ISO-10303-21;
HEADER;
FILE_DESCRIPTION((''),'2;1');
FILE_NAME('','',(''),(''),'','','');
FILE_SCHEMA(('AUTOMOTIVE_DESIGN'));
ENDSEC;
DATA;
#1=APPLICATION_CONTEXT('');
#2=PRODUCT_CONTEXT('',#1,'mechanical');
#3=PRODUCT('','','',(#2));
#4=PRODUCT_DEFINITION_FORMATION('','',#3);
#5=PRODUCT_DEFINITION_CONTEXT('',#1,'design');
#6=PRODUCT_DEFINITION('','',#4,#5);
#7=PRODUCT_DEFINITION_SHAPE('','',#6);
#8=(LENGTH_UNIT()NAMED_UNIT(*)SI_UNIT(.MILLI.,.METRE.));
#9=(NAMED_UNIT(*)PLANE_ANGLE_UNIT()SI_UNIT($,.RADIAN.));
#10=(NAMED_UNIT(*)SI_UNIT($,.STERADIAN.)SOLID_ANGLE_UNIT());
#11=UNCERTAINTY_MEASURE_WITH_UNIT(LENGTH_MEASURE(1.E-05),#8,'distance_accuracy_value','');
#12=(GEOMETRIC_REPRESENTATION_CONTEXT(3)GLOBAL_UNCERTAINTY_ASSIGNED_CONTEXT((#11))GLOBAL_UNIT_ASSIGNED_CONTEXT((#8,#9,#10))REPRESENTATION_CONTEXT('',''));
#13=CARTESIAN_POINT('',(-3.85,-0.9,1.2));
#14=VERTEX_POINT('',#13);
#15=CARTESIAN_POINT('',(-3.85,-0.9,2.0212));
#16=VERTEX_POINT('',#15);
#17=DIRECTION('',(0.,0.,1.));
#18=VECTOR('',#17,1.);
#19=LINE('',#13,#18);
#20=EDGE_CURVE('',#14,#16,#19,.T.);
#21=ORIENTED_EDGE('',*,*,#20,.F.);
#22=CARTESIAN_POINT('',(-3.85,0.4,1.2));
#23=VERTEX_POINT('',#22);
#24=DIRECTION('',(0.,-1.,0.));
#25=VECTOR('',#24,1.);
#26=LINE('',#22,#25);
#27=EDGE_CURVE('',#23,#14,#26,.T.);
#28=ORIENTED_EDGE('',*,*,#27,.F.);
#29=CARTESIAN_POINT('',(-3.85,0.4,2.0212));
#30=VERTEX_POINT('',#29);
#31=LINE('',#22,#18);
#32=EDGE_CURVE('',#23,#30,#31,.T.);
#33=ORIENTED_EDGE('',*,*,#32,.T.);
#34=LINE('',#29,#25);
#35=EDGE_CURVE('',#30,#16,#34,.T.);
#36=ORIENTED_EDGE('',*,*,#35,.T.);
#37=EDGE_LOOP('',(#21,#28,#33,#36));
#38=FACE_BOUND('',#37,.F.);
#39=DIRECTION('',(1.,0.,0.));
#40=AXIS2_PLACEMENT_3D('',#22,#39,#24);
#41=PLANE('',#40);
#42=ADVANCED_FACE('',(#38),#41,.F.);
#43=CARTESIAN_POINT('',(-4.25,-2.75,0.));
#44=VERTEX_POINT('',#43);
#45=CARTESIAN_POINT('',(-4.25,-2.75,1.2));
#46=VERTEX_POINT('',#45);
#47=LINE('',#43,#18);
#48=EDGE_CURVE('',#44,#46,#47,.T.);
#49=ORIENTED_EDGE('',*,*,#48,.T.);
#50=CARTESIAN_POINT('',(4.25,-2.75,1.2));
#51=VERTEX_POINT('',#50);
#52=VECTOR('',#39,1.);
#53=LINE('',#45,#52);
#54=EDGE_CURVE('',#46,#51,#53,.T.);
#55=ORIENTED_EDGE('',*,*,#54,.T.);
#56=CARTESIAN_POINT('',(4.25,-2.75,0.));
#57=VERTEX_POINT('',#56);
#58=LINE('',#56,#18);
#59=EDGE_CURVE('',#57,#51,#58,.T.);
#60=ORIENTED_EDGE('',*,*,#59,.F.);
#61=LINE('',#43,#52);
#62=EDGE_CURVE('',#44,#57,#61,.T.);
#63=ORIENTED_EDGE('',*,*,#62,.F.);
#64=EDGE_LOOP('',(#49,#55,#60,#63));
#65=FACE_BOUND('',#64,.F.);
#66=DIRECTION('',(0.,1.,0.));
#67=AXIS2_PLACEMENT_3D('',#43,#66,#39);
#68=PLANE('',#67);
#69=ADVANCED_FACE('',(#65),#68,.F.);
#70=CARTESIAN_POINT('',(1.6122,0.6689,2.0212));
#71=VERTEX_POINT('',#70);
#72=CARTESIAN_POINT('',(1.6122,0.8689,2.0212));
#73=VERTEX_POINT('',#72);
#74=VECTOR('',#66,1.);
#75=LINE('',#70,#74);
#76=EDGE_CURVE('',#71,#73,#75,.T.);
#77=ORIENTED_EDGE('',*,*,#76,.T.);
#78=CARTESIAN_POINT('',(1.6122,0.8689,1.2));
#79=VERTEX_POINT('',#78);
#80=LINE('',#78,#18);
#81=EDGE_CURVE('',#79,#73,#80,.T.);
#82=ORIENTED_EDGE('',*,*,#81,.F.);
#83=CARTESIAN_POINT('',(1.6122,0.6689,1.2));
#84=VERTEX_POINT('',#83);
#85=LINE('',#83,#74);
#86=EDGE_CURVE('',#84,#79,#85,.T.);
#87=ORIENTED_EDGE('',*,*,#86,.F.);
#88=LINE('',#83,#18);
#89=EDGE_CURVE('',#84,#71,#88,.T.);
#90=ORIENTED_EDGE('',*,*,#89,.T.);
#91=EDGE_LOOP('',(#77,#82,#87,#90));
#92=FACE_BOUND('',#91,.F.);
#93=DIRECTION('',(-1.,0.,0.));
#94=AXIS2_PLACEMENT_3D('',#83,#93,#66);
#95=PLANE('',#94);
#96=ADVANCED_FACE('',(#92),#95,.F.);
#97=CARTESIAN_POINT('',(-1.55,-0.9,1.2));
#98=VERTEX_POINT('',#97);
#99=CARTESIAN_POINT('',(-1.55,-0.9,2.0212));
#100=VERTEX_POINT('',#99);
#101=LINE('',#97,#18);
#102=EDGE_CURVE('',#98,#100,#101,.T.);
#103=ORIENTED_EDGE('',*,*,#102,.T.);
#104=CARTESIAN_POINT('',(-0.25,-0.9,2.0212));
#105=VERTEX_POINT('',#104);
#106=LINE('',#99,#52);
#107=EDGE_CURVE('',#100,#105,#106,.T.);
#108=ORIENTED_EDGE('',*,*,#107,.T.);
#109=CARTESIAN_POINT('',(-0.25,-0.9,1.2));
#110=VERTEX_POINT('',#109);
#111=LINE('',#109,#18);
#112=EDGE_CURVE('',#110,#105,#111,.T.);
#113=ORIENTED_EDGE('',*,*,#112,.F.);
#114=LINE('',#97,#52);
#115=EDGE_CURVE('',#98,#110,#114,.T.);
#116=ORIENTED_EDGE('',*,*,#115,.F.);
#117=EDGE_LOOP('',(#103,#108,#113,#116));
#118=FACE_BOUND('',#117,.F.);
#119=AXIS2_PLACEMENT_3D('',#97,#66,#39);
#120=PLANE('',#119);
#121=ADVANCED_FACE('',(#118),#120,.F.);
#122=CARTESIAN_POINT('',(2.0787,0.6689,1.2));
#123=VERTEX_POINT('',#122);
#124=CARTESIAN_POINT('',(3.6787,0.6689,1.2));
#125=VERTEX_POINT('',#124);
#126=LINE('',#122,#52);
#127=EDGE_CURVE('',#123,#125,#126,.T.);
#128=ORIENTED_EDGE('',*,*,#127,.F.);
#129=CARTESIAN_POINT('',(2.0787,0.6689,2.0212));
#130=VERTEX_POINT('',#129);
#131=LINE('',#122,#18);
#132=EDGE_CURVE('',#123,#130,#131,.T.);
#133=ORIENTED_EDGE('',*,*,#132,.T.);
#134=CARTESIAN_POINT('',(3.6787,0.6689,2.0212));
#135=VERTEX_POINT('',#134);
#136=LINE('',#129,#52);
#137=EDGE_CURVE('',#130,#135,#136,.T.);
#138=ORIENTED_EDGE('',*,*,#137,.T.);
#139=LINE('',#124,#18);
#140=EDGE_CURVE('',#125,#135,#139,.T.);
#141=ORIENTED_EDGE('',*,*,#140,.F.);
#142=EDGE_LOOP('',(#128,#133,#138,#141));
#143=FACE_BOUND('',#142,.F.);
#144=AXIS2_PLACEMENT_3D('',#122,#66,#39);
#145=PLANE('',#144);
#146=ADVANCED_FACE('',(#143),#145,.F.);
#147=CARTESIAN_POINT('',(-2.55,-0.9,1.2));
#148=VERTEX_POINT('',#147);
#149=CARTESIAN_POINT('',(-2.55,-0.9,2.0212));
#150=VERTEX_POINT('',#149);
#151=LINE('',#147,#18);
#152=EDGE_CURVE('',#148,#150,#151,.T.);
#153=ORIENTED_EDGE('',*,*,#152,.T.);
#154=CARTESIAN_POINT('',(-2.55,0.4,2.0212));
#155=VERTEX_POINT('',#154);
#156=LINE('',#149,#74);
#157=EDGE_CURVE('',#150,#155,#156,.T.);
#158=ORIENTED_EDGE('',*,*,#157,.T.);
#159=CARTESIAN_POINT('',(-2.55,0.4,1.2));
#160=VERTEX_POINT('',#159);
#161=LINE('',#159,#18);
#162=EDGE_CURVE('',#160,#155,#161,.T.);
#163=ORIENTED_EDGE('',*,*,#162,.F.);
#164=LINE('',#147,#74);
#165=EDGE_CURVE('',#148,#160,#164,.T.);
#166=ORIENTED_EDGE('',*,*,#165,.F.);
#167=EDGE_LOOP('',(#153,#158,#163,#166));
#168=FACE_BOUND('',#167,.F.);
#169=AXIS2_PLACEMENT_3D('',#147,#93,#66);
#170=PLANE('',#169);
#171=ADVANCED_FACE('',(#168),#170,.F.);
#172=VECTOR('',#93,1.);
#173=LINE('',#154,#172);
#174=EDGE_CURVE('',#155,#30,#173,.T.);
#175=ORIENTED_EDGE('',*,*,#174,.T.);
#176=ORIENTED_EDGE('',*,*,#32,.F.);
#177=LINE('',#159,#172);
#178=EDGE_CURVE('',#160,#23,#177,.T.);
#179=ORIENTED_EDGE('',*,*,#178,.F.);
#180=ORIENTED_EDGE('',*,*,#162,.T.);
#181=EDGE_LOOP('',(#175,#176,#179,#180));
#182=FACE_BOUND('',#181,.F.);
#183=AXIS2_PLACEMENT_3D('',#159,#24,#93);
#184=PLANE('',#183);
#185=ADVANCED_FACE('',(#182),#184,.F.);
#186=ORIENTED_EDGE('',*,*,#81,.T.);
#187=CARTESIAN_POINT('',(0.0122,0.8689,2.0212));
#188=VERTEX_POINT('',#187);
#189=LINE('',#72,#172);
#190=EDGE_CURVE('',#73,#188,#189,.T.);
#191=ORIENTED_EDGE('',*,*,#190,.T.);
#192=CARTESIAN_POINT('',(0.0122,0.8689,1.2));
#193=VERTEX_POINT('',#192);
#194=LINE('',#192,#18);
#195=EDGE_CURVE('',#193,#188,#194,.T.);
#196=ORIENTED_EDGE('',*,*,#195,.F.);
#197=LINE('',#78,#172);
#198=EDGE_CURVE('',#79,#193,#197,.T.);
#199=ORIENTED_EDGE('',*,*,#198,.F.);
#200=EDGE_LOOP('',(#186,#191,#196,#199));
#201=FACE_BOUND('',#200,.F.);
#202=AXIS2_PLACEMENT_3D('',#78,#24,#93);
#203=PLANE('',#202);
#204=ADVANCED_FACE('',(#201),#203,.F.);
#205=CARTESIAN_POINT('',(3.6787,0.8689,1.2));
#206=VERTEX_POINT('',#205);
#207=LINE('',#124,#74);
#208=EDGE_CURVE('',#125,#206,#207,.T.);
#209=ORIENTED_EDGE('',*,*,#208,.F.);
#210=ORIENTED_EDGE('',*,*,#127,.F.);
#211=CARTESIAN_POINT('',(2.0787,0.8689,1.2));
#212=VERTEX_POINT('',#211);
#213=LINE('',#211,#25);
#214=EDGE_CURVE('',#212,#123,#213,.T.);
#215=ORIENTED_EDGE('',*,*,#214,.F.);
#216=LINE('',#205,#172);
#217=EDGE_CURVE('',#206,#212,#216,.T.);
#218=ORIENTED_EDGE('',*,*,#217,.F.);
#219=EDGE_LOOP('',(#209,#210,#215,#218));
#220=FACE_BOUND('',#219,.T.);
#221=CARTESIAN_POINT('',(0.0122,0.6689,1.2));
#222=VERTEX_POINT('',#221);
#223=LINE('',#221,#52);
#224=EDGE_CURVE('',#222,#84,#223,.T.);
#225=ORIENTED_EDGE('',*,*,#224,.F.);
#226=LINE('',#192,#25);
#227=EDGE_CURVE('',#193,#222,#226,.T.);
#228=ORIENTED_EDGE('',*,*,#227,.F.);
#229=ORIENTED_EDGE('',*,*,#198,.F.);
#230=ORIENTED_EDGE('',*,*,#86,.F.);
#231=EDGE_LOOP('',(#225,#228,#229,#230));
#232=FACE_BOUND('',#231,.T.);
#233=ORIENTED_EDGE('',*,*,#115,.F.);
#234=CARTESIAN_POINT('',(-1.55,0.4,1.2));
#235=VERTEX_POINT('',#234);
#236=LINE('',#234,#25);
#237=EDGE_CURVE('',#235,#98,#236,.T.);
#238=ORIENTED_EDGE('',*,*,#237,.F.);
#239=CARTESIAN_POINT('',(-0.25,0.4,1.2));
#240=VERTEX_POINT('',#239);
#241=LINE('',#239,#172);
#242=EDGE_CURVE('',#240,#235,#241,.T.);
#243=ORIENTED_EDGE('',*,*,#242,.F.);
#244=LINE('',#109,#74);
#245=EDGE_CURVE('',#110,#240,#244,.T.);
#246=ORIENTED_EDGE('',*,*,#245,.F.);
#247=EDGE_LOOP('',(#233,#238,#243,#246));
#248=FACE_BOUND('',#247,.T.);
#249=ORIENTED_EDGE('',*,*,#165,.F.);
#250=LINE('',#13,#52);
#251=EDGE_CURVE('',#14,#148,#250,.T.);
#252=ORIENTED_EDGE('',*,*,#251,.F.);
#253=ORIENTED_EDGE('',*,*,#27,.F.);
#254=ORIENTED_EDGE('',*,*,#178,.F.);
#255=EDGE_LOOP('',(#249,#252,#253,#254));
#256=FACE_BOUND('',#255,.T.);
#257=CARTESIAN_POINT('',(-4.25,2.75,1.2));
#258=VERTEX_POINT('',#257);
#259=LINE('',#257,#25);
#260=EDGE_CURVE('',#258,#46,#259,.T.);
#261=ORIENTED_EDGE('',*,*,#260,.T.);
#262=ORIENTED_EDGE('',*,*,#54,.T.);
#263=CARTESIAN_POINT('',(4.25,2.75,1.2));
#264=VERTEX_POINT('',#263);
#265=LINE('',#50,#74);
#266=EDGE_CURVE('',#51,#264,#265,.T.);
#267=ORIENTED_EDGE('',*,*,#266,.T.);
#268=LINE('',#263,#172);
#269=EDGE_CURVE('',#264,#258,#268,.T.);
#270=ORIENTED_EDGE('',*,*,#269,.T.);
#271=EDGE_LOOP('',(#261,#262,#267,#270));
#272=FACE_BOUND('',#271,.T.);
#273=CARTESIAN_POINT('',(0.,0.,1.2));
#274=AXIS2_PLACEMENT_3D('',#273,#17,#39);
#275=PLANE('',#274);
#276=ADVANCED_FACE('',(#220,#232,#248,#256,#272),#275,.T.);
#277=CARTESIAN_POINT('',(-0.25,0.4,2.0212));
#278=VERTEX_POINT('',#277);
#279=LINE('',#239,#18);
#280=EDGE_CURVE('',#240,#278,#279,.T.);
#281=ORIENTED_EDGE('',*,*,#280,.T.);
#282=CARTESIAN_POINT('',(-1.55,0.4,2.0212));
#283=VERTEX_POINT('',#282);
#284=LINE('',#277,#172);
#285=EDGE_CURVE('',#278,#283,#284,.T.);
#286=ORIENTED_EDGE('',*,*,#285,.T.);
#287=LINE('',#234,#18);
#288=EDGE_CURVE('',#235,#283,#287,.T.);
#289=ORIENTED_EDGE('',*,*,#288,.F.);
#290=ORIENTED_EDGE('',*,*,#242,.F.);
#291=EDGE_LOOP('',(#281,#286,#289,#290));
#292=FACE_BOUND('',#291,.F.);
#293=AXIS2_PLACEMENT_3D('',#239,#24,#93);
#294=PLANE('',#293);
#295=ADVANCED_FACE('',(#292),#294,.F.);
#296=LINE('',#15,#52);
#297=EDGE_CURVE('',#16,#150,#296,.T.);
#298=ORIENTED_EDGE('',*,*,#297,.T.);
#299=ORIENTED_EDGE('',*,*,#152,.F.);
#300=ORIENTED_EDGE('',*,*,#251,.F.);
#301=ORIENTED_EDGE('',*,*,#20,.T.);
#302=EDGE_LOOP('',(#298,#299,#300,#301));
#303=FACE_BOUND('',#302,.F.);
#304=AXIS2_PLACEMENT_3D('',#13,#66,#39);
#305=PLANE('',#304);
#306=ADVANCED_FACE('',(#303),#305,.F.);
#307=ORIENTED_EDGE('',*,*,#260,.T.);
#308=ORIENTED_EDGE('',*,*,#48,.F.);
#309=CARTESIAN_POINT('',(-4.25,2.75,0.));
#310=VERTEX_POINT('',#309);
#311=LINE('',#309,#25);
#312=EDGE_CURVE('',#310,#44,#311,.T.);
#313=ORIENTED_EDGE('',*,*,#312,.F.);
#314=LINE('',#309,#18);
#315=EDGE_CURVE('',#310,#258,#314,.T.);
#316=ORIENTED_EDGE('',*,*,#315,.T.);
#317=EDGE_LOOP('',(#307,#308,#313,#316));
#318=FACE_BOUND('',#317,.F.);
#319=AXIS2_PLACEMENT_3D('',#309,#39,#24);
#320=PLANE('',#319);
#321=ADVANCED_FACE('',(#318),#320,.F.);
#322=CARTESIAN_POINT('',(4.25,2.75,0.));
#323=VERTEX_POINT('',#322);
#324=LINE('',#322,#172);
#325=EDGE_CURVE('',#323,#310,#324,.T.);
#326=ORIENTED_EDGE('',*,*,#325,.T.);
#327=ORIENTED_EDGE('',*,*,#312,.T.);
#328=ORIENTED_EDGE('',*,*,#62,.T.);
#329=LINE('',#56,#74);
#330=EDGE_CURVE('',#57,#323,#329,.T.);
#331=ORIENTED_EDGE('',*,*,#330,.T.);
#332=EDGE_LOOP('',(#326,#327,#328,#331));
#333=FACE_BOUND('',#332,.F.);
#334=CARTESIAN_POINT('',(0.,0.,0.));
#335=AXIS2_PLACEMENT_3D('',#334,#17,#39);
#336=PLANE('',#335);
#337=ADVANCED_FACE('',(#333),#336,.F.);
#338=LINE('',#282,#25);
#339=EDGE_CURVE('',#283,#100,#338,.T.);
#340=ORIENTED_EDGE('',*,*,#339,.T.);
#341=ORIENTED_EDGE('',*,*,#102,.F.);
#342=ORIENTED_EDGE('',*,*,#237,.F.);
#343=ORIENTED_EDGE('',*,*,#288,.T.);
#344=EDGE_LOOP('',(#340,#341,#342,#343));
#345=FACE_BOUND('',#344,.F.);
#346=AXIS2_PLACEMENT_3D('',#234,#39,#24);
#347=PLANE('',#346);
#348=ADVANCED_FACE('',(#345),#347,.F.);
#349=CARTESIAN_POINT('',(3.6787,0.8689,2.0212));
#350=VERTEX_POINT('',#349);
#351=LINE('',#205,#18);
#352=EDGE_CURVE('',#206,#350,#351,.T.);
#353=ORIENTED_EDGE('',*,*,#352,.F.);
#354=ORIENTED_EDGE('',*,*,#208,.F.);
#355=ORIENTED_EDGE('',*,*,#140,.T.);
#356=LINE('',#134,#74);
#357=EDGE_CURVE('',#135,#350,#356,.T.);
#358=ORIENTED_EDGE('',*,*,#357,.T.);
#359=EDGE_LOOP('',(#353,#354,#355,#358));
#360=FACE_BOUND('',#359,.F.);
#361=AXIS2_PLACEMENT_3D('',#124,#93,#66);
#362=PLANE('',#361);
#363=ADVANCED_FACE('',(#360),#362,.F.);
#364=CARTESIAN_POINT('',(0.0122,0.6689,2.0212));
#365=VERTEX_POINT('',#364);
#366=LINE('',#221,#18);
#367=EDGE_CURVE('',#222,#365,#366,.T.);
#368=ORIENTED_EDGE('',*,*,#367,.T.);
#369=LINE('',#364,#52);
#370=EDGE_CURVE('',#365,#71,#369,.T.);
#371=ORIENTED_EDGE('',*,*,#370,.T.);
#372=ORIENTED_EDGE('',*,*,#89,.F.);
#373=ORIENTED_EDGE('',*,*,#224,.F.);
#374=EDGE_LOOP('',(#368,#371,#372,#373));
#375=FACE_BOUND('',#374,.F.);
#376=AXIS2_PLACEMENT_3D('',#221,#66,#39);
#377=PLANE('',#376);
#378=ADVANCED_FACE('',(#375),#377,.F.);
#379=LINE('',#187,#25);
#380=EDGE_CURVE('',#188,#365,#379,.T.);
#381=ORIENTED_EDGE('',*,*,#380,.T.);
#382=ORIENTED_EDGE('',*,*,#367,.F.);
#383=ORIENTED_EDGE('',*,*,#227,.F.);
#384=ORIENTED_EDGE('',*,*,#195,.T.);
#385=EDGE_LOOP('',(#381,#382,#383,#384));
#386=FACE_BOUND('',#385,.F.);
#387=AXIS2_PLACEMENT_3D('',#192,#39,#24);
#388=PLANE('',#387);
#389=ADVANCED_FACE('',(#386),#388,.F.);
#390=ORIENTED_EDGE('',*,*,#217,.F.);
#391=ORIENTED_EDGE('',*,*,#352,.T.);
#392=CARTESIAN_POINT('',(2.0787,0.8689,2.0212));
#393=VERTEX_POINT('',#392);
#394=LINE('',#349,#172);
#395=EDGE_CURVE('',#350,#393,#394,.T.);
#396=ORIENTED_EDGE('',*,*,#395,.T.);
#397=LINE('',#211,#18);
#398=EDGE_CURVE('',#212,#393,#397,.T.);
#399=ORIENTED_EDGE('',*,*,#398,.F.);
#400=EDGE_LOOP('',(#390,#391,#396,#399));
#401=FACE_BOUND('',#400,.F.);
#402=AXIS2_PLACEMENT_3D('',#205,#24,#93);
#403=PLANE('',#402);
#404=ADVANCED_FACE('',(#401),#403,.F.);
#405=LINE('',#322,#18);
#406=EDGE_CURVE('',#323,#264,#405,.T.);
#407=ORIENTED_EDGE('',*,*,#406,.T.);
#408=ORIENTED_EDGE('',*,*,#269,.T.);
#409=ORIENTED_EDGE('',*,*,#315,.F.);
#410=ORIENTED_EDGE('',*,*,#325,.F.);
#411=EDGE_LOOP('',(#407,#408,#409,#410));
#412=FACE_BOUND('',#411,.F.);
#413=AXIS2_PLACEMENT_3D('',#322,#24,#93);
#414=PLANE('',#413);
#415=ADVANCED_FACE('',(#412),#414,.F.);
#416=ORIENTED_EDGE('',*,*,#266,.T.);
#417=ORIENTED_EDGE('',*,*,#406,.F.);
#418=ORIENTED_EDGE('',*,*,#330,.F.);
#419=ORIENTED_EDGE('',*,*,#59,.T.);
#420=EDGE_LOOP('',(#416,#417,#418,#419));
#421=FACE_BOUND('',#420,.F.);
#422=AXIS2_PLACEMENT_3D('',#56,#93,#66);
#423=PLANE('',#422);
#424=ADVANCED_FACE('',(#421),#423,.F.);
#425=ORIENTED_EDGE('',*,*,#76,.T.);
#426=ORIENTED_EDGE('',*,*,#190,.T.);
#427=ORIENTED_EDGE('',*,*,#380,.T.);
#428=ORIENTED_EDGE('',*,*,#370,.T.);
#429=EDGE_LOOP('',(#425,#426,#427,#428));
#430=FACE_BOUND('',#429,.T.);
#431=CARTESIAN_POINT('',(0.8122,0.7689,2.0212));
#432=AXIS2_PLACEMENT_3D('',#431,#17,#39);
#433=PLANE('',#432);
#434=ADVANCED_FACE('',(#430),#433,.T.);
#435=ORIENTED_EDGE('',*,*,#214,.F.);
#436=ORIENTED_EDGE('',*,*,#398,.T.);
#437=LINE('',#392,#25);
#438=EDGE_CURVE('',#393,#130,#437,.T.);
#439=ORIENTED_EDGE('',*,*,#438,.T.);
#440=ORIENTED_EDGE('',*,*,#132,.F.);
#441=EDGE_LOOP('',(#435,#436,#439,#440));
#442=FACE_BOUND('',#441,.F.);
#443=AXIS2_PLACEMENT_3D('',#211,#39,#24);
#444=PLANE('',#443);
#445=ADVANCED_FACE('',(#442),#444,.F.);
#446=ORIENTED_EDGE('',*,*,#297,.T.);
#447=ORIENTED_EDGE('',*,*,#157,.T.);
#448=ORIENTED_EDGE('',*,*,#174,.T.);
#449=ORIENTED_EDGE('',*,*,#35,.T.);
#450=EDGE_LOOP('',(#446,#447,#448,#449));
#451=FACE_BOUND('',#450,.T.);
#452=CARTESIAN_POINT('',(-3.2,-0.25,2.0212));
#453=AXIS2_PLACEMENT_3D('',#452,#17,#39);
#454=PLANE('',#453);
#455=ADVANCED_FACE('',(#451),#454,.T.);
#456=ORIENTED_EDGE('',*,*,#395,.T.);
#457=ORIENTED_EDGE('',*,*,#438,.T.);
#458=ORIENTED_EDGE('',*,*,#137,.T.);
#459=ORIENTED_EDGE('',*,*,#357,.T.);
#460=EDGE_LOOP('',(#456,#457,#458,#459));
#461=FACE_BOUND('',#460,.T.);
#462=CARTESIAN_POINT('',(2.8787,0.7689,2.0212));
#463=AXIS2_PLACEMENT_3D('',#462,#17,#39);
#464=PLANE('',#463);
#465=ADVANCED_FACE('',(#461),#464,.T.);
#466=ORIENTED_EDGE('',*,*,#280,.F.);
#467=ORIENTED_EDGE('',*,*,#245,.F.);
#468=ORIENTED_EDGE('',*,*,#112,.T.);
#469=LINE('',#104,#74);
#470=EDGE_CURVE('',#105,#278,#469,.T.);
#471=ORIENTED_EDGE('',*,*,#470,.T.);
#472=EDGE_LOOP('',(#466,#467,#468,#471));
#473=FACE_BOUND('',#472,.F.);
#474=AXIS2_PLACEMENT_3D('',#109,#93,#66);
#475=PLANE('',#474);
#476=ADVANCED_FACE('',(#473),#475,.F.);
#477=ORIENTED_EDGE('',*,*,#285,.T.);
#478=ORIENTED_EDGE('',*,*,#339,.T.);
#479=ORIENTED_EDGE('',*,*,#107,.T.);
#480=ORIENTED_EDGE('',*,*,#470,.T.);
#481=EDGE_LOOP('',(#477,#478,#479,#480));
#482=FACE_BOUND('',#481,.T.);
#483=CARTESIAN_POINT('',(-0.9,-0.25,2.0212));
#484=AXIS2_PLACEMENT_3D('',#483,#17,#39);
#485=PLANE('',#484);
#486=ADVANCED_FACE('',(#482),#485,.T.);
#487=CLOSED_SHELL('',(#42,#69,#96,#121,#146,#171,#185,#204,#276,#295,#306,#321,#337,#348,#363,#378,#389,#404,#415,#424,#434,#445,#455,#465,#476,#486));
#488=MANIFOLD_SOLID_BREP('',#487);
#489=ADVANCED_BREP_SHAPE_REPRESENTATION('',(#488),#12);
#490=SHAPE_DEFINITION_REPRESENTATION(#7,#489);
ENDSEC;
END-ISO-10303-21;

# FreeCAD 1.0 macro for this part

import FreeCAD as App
import Part
import Sketcher
from FreeCAD import Vector
Q = App.Units.Quantity


def add_polygon(sketch, points):
    """Adds a closed chain of lines whose ends are joined by coincident constraints."""
    first, n = sketch.GeometryCount, len(points)
    for a, b in zip(points, points[1:] + points[:1]):
        sketch.addGeometry(Part.LineSegment(App.Vector(*a, 0), App.Vector(*b, 0)), False)
    for i in range(n):
        sketch.addConstraint(Sketcher.Constraint("Coincident", first + i, 2, first + (i + 1) % n, 1))

doc = App.newDocument("Part")
body = doc.addObject("PartDesign::Body", "Body")

# Sketch on XY plane
sketch1 = body.newObject("Sketcher::SketchObject", "Sketch")
sketch1.AttachmentSupport = (doc.getObject("XY_Plane"), [""])
sketch1.MapMode = "FlatFace"
add_polygon(sketch1, [(-4.25, 2.75), (-4.25, -2.75), (4.25, -2.75), (4.25, 2.75)])  # lines 0-3
sketch1.addConstraint(Sketcher.Constraint("Vertical", 0))
sketch1.addConstraint(Sketcher.Constraint("Horizontal", 1))
sketch1.addConstraint(Sketcher.Constraint("Vertical", 2))
sketch1.addConstraint(Sketcher.Constraint("Horizontal", 3))
sketch1.addConstraint(Sketcher.Constraint("Symmetric", 0, 2, 2, 2, -1, 1))
sketch1.addConstraint(Sketcher.Constraint("DistanceX", 0, 2, -1, 1, Q("4.25 mm")))
sketch1.addConstraint(Sketcher.Constraint("DistanceY", 0, 2, 0, 1, Q("5.5 mm")))
pad1 = body.newObject("PartDesign::Pad", "Pad")
pad1.Profile = sketch1
pad1.Length = 1.2

# Sketch on XY plane
sketch2 = body.newObject("Sketcher::SketchObject", "Sketch001")
sketch2.AttachmentSupport = (doc.getObject("XY_Plane"), [""])
sketch2.MapMode = "FlatFace"
sketch2.AttachmentOffset = App.Placement(Vector(0, 0, 1.2), App.Rotation())
add_polygon(sketch2, [(-3.85, 0.4), (-3.85, -0.9), (-2.55, -0.9), (-2.55, 0.4)])  # lines 0-3
add_polygon(sketch2, [(-1.55, -0.9), (-0.25, -0.9), (-0.25, 0.4), (-1.55, 0.4)])  # lines 4-7
add_polygon(sketch2, [(0.0122, 0.8689), (0.0122, 0.6689), (1.6122, 0.6689), (1.6122, 0.8689)])  # lines 8-11
add_polygon(sketch2, [(2.0787, 0.8689), (2.0787, 0.6689), (3.6787, 0.6689), (3.6787, 0.8689)])  # lines 12-15
sketch2.addConstraint(Sketcher.Constraint("Vertical", 0))
sketch2.addConstraint(Sketcher.Constraint("Horizontal", 1))
sketch2.addConstraint(Sketcher.Constraint("Vertical", 2))
sketch2.addConstraint(Sketcher.Constraint("Horizontal", 3))
sketch2.addConstraint(Sketcher.Constraint("Horizontal", 4))
sketch2.addConstraint(Sketcher.Constraint("Vertical", 5))
sketch2.addConstraint(Sketcher.Constraint("Horizontal", 6))
sketch2.addConstraint(Sketcher.Constraint("Vertical", 7))
sketch2.addConstraint(Sketcher.Constraint("Vertical", 8))
sketch2.addConstraint(Sketcher.Constraint("Horizontal", 9))
sketch2.addConstraint(Sketcher.Constraint("Vertical", 10))
sketch2.addConstraint(Sketcher.Constraint("Horizontal", 11))
sketch2.addConstraint(Sketcher.Constraint("Vertical", 12))
sketch2.addConstraint(Sketcher.Constraint("Horizontal", 13))
sketch2.addConstraint(Sketcher.Constraint("Vertical", 14))
sketch2.addConstraint(Sketcher.Constraint("Horizontal", 15))
sketch2.addConstraint(Sketcher.Constraint("Horizontal", 1, 2, 4, 2))
sketch2.addConstraint(Sketcher.Constraint("Horizontal", 3, 2, 5, 2))
sketch2.addConstraint(Sketcher.Constraint("Horizontal", 9, 2, 12, 2))
sketch2.addConstraint(Sketcher.Constraint("Horizontal", 11, 2, 14, 2))
sketch2.addConstraint(Sketcher.Constraint("Equal", 3, 4))
sketch2.addConstraint(Sketcher.Constraint("Equal", 11, 13))
sketch2.addConstraint(Sketcher.Constraint("Equal", 6, 0))
sketch2.addConstraint(Sketcher.Constraint("DistanceX", 0, 2, -1, 1, Q("3.85 mm")))
sketch2.addConstraint(Sketcher.Constraint("DistanceX", 1, 2, -1, 1, Q("2.55 mm")))
sketch2.addConstraint(Sketcher.Constraint("DistanceX", 9, 1, 9, 2, Q("1.6 mm")))
sketch2.addConstraint(Sketcher.Constraint("DistanceY", 8, 2, 8, 1, Q("0.2 mm")))
sketch2.addConstraint(Sketcher.Constraint("DistanceX", 2, 2, 6, 2, Q("1 mm")))
sketch2.addConstraint(Sketcher.Constraint("DistanceY", 0, 2, -1, 1, Q("0.9 mm")))
sketch2.addConstraint(Sketcher.Constraint("DistanceY", -1, 1, 8, 2, Q("0.669 mm")))
sketch2.addConstraint(Sketcher.Constraint("DistanceX", -1, 1, 8, 2, Q("0.0122 mm")))
sketch2.addConstraint(Sketcher.Constraint("DistanceX", -1, 1, 12, 2, Q("2.0787 mm")))
pad2 = body.newObject("PartDesign::Pad", "Pad001")
pad2.Profile = sketch2
pad2.Length = 0.8212

doc.recompute()
